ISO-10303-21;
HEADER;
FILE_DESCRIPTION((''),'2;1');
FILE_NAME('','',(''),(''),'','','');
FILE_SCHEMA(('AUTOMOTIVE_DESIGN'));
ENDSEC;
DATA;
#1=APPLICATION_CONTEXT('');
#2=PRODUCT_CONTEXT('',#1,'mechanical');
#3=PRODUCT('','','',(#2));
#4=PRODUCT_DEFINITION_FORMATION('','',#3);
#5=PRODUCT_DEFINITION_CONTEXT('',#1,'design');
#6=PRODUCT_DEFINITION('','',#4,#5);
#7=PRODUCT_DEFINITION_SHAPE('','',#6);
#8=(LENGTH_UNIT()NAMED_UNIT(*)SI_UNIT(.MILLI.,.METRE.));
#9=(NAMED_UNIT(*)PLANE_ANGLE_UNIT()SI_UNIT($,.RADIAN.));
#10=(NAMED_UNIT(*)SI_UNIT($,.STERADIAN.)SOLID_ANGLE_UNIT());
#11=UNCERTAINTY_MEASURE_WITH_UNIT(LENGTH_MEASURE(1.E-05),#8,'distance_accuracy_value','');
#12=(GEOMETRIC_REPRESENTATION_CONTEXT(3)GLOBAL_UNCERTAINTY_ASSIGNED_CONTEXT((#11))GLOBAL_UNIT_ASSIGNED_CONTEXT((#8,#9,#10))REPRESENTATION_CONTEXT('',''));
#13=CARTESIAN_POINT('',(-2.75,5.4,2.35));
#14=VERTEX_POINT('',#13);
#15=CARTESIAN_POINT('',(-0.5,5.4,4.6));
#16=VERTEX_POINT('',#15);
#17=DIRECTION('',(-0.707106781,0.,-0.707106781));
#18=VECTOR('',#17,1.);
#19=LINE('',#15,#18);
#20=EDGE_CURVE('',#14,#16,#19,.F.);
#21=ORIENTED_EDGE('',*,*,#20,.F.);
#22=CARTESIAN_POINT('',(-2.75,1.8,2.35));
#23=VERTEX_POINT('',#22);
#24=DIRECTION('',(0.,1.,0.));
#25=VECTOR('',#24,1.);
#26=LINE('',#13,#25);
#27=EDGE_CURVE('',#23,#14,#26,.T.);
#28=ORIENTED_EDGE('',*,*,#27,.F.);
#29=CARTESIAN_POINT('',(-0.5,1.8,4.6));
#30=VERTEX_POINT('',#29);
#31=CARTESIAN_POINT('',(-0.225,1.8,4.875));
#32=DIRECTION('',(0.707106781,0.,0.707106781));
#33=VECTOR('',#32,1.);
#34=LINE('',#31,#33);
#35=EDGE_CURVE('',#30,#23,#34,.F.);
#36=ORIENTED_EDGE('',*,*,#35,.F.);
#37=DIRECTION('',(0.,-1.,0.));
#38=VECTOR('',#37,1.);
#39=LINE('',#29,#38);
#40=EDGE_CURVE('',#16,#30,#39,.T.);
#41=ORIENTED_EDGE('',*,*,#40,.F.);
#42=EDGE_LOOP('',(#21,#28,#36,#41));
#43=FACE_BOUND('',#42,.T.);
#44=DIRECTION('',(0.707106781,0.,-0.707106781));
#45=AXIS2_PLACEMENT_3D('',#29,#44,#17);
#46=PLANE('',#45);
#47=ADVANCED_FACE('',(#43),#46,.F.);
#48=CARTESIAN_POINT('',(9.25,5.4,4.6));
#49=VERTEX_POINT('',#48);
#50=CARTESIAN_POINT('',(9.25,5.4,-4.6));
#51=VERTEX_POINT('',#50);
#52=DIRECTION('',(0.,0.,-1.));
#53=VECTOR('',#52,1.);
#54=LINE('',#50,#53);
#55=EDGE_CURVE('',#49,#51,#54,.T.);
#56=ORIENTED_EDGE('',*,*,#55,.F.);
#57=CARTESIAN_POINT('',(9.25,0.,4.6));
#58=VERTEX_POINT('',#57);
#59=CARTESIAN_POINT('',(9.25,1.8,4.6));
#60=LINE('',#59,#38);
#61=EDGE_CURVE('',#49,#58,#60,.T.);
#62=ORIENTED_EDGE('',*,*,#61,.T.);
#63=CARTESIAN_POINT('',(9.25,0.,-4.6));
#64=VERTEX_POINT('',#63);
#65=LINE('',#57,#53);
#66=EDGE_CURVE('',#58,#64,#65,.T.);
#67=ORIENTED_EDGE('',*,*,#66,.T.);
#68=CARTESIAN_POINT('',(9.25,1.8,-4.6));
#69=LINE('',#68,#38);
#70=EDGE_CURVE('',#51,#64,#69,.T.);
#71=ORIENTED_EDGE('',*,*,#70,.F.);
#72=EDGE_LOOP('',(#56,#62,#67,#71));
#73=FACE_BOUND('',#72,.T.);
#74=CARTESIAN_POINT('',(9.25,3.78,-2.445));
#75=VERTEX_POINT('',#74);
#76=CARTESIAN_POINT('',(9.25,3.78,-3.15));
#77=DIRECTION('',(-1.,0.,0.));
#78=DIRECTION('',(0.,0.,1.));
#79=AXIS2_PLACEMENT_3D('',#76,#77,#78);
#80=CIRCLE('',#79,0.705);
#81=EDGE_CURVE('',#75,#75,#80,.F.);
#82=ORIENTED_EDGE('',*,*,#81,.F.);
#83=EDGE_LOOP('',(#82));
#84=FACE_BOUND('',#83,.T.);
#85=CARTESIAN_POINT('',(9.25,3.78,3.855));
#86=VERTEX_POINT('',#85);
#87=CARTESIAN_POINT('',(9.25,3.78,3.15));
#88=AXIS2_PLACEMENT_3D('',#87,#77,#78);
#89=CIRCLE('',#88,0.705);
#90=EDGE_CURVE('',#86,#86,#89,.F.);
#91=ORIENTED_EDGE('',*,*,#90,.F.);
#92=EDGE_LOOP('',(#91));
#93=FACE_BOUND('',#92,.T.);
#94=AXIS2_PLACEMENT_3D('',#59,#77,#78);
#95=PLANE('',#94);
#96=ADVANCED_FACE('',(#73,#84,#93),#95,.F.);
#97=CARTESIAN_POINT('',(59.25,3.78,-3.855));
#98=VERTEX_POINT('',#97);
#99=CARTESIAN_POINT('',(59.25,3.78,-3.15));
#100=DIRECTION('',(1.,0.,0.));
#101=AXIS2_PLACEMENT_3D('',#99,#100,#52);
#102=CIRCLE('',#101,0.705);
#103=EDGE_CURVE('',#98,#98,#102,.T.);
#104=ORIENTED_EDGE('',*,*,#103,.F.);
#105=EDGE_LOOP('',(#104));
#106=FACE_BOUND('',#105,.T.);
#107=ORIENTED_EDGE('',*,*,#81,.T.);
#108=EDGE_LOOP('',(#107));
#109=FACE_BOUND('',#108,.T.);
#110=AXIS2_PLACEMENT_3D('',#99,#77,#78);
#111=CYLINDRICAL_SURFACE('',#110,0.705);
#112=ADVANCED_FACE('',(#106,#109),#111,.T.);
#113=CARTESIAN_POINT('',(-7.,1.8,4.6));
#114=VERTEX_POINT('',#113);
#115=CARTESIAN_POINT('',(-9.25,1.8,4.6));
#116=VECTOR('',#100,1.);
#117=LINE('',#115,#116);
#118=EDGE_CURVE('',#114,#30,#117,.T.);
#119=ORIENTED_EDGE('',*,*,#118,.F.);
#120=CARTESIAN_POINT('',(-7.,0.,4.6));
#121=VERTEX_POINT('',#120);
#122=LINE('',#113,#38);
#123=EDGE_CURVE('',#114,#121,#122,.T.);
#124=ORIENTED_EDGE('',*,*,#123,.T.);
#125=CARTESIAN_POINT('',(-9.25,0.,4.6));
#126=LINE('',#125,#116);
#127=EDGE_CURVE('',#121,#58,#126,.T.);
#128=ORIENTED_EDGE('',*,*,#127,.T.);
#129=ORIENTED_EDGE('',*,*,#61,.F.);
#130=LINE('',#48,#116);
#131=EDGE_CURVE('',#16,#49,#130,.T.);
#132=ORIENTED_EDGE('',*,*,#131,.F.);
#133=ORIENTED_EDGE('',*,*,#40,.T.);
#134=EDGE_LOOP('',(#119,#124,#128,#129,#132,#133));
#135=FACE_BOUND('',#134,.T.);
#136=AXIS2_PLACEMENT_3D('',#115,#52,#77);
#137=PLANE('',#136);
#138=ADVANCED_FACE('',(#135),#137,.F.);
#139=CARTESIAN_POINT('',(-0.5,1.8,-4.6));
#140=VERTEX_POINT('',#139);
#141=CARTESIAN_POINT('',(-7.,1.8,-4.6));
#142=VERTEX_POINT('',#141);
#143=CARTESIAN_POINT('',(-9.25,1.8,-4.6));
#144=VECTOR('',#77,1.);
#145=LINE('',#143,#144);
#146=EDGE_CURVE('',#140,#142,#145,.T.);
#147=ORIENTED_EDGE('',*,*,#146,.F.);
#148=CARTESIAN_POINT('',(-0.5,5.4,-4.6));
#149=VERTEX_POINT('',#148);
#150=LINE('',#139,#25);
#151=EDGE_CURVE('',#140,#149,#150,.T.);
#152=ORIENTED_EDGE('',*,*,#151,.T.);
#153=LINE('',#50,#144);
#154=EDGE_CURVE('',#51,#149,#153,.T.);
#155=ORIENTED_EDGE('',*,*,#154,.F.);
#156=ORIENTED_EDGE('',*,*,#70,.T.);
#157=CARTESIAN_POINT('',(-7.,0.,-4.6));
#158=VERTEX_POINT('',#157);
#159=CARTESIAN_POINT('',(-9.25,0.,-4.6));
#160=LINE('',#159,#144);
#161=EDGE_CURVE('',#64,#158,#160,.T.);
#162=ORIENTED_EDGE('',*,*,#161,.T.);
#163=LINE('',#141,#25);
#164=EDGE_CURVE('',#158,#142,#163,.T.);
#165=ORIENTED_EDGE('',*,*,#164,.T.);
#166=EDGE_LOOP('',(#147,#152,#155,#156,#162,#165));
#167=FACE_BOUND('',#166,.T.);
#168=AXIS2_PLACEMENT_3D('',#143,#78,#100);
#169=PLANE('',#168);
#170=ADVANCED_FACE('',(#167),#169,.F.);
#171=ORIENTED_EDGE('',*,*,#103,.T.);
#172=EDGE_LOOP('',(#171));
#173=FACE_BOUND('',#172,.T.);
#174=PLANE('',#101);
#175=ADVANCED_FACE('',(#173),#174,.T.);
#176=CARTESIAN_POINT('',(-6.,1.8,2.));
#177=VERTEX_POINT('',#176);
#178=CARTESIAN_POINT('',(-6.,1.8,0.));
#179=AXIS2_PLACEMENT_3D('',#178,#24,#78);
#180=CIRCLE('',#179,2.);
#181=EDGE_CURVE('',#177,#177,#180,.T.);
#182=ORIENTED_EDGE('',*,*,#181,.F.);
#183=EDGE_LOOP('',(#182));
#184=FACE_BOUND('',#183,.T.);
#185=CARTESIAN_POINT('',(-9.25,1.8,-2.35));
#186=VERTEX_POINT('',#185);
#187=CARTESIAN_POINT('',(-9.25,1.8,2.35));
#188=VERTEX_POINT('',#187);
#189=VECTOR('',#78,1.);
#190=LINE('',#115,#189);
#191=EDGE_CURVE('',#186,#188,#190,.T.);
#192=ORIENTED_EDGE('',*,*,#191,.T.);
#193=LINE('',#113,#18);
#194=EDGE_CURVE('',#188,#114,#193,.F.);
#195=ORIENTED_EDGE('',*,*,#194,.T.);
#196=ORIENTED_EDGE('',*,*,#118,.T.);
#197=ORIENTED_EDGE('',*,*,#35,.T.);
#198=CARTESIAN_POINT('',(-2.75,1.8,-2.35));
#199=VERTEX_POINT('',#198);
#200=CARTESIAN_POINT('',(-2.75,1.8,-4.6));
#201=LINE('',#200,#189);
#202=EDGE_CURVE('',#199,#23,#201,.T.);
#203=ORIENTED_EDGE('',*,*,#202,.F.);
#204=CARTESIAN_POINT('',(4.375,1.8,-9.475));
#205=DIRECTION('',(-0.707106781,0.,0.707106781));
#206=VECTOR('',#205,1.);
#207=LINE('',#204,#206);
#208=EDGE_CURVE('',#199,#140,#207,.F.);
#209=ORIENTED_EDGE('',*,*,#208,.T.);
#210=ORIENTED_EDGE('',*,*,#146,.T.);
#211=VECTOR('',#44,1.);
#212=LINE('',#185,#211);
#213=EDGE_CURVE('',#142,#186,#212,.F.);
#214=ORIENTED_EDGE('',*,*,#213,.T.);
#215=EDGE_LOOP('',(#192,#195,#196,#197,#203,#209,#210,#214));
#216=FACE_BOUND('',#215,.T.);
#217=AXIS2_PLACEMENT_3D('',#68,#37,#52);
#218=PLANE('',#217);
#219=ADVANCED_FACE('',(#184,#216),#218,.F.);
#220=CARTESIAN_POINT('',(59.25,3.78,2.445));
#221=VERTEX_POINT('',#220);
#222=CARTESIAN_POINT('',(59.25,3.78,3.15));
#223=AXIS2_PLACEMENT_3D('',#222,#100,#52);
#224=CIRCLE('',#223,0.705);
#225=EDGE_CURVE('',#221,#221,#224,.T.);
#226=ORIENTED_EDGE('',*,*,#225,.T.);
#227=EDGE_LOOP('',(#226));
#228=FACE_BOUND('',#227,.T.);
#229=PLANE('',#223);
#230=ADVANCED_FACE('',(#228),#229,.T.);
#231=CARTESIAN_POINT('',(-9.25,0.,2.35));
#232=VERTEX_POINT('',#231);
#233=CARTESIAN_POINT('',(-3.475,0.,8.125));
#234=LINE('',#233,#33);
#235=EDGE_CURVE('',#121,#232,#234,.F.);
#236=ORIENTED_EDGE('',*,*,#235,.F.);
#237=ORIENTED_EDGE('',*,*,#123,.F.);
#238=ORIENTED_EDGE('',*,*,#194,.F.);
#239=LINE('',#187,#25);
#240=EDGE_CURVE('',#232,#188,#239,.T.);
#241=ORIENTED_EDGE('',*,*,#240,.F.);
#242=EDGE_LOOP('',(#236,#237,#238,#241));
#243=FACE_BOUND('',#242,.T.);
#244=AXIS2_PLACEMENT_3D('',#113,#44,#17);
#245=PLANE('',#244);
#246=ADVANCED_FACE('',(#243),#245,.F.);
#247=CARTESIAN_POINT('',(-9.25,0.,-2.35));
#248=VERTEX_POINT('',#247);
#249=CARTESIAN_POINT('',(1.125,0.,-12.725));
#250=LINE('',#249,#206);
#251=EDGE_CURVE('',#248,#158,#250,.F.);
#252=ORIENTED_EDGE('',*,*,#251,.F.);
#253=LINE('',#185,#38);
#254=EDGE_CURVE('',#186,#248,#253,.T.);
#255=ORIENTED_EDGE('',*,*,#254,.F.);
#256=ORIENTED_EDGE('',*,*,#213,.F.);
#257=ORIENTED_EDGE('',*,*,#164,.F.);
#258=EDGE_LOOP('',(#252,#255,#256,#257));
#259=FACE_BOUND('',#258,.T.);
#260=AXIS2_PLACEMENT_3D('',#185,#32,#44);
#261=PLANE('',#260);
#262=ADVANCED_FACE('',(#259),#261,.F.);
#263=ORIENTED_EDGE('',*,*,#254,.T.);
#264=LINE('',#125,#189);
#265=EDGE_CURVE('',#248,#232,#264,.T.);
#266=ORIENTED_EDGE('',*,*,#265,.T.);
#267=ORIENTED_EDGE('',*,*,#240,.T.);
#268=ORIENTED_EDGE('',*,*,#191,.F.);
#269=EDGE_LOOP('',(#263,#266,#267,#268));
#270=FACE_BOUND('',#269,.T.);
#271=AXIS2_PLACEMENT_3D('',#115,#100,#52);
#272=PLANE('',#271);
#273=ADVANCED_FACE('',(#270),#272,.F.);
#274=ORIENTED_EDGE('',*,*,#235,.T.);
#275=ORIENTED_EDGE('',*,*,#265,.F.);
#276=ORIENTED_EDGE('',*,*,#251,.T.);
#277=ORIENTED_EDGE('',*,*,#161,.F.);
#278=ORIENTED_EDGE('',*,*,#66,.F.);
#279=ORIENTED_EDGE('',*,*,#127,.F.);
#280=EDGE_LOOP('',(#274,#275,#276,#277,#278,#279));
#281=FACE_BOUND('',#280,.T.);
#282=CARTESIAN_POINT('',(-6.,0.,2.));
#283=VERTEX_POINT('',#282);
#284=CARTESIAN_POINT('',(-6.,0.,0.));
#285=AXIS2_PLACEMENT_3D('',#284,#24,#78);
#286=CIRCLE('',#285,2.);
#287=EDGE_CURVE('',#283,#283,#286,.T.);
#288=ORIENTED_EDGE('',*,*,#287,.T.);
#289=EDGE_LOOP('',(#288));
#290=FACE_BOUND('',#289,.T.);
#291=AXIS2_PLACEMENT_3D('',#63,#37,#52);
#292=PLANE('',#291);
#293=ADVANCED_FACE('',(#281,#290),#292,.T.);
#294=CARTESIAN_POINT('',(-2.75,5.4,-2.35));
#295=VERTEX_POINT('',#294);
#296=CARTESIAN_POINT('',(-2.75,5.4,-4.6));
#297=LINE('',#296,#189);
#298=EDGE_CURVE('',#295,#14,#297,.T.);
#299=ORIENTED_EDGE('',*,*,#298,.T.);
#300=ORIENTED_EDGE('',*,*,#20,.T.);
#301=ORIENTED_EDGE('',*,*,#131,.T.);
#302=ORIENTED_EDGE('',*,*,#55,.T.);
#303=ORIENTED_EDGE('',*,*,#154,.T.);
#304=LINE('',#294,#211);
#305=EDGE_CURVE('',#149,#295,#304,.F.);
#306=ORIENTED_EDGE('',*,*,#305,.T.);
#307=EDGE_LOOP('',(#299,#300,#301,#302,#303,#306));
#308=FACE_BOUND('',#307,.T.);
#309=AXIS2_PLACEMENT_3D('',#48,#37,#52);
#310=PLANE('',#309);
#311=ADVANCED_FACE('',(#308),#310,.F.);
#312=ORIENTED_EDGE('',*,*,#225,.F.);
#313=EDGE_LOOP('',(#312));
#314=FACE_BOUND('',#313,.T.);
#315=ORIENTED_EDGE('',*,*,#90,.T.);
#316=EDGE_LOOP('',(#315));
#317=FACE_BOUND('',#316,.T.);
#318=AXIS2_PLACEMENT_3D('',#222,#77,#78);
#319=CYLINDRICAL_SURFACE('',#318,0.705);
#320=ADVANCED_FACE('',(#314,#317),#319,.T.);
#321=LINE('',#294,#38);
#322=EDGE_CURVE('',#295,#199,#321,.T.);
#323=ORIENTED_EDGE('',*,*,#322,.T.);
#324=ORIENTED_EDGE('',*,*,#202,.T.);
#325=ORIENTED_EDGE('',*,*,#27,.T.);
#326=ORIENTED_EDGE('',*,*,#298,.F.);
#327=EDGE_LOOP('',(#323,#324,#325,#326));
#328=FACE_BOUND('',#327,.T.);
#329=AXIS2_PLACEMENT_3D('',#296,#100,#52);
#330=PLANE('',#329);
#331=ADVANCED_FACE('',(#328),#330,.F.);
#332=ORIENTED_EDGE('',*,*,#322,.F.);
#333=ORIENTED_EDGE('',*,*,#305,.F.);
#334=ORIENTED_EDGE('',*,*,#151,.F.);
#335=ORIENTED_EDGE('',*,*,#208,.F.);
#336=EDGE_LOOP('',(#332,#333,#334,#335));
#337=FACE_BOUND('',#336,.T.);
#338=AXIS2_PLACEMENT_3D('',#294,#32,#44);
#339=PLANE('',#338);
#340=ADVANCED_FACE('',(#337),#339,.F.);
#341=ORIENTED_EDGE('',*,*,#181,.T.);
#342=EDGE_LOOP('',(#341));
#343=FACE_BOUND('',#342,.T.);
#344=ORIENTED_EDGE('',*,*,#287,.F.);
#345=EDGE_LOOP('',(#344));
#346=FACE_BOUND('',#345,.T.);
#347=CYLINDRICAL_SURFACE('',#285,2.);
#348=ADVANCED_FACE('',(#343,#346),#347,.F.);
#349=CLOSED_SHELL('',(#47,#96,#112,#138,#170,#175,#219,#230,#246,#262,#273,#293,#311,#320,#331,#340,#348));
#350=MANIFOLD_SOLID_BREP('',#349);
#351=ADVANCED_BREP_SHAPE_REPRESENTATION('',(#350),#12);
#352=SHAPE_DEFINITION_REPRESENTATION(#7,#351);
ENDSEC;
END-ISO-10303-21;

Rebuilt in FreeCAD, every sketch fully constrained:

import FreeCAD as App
import Part
import Sketcher
from FreeCAD import Vector
Q = App.Units.Quantity


def edges_at(feature, points):
    """Names of the edges that pass closest to the given points."""
    edges = feature.Shape.Edges
    near = lambda p: min(range(len(edges)), key=lambda i: edges[i].distToShape(Part.Vertex(*p))[0])
    return sorted({f"Edge{near(p) + 1}" for p in points})

doc = App.newDocument("Part")
body = doc.addObject("PartDesign::Body", "Body")

sketch1 = body.newObject("Sketcher::SketchObject", "Sketch")
sketch1.AttachmentSupport = (doc.getObject("XZ_Plane"), [""])
sketch1.MapMode = "FlatFace"
sketch1.addGeometry([
    Part.LineSegment(Vector(-9.25, -4.6, 0), Vector(-9.25, 4.6, 0)),
    Part.LineSegment(Vector(-9.25, 4.6, 0), Vector(9.25, 4.6, 0)),
    Part.LineSegment(Vector(9.25, 4.6, 0), Vector(9.25, -4.6, 0)),
    Part.LineSegment(Vector(9.25, -4.6, 0), Vector(-9.25, -4.6, 0)),
], False)
sketch1.addConstraint([
    Sketcher.Constraint("Coincident", 0, 2, 1, 1),
    Sketcher.Constraint("Coincident", 1, 2, 2, 1),
    Sketcher.Constraint("Coincident", 2, 2, 3, 1),
    Sketcher.Constraint("Coincident", 3, 2, 0, 1),
    Sketcher.Constraint("Vertical", 0),
    Sketcher.Constraint("Horizontal", 1),
    Sketcher.Constraint("Vertical", 2),
    Sketcher.Constraint("Horizontal", 3),
    Sketcher.Constraint("Symmetric", 0, 2, 2, 2, -1, 1),
    Sketcher.Constraint("DistanceX", 1, 1, 1, 2, Q("18.5 mm")),
    Sketcher.Constraint("DistanceY", 0, 1, 0, 2, Q("9.2 mm")),
])
pad1 = body.newObject("PartDesign::Pad", "Pad")
pad1.Profile = sketch1
pad1.Length = 1.8
pad1.Reversed = True

sketch2 = body.newObject("Sketcher::SketchObject", "Sketch001")
sketch2.AttachmentSupport = (doc.getObject("XZ_Plane"), [""])
sketch2.MapMode = "FlatFace"
sketch2.AttachmentOffset = App.Placement(Vector(0, 0, -1.8), App.Rotation())
sketch2.addGeometry([
    Part.LineSegment(Vector(-2.75, -4.6, 0), Vector(-2.75, 4.6, 0)),
    Part.LineSegment(Vector(-2.75, 4.6, 0), Vector(9.25, 4.6, 0)),
    Part.LineSegment(Vector(9.25, 4.6, 0), Vector(9.25, -4.6, 0)),
    Part.LineSegment(Vector(9.25, -4.6, 0), Vector(-2.75, -4.6, 0)),
], False)
sketch2.addConstraint([
    Sketcher.Constraint("Coincident", 0, 2, 1, 1),
    Sketcher.Constraint("Coincident", 1, 2, 2, 1),
    Sketcher.Constraint("Coincident", 2, 2, 3, 1),
    Sketcher.Constraint("Coincident", 3, 2, 0, 1),
    Sketcher.Constraint("Vertical", 0),
    Sketcher.Constraint("Horizontal", 1),
    Sketcher.Constraint("Vertical", 2),
    Sketcher.Constraint("Horizontal", 3),
    Sketcher.Constraint("DistanceX", 1, 1, 1, 2, Q("12 mm")),
    Sketcher.Constraint("DistanceY", 0, 1, 0, 2, Q("9.2 mm")),
    Sketcher.Constraint("DistanceY", -1, 1, 0, 2, Q("4.6 mm")),
    Sketcher.Constraint("DistanceX", 0, 2, -1, 1, Q("2.75 mm")),
])
pad2 = body.newObject("PartDesign::Pad", "Pad001")
pad2.Profile = sketch2
pad2.Length = 3.6
pad2.Reversed = True

sketch3 = body.newObject("Sketcher::SketchObject", "Sketch002")
sketch3.AttachmentSupport = (doc.getObject("YZ_Plane"), [""])
sketch3.MapMode = "FlatFace"
sketch3.AttachmentOffset = App.Placement(Vector(0, 0, 9.25), App.Rotation())
sketch3.addGeometry([
    Part.Circle(Vector(3.78, 3.15, 0), Vector(0, 0, 1), 0.705),
    Part.Circle(Vector(3.78, -3.15, 0), Vector(0, 0, 1), 0.705),
], False)
sketch3.addConstraint([
    Sketcher.Constraint("Equal", 0, 1),
    Sketcher.Constraint("Symmetric", 0, 3, 1, 3, -1),
    Sketcher.Constraint("Diameter", 0, Q("1.41 mm")),
    Sketcher.Constraint("DistanceY", 1, 3, 0, 3, Q("6.3 mm")),
    Sketcher.Constraint("DistanceX", -1, 1, 0, 3, Q("3.78 mm")),
])
pad3 = body.newObject("PartDesign::Pad", "Pad002")
pad3.Profile = sketch3
pad3.Length = 50

sketch4 = body.newObject("Sketcher::SketchObject", "Sketch003")
sketch4.AttachmentSupport = (doc.getObject("XZ_Plane"), [""])
sketch4.MapMode = "FlatFace"
sketch4.AttachmentOffset = App.Placement(Vector(0, 0, -1.8), App.Rotation())
sketch4.addGeometry(Part.Circle(Vector(-6, 0, 0), Vector(0, 0, 1), 2), False)
sketch4.addConstraint([
    Sketcher.Constraint("PointOnObject", 0, 3, -1),
    Sketcher.Constraint("Diameter", 0, Q("4 mm")),
    Sketcher.Constraint("DistanceX", 0, 3, -1, 1, Q("6 mm")),
])
pocket1 = body.newObject("PartDesign::Pocket", "Pocket")
pocket1.Profile = sketch4
pocket1.Type = "ThroughAll"
pocket1.Reversed = True
doc.recompute()

chamfer = body.newObject("PartDesign::Chamfer", "Chamfer")
chamfer.Base = (pocket1, edges_at(pocket1, [
    (-9.25, 0.9, -4.6),
    (-9.25, 0.9, 4.6),
    (-2.75, 3.6, -4.6),
    (-2.75, 3.6, 4.6),
]))
chamfer.Size = 2.25

doc.recompute()
